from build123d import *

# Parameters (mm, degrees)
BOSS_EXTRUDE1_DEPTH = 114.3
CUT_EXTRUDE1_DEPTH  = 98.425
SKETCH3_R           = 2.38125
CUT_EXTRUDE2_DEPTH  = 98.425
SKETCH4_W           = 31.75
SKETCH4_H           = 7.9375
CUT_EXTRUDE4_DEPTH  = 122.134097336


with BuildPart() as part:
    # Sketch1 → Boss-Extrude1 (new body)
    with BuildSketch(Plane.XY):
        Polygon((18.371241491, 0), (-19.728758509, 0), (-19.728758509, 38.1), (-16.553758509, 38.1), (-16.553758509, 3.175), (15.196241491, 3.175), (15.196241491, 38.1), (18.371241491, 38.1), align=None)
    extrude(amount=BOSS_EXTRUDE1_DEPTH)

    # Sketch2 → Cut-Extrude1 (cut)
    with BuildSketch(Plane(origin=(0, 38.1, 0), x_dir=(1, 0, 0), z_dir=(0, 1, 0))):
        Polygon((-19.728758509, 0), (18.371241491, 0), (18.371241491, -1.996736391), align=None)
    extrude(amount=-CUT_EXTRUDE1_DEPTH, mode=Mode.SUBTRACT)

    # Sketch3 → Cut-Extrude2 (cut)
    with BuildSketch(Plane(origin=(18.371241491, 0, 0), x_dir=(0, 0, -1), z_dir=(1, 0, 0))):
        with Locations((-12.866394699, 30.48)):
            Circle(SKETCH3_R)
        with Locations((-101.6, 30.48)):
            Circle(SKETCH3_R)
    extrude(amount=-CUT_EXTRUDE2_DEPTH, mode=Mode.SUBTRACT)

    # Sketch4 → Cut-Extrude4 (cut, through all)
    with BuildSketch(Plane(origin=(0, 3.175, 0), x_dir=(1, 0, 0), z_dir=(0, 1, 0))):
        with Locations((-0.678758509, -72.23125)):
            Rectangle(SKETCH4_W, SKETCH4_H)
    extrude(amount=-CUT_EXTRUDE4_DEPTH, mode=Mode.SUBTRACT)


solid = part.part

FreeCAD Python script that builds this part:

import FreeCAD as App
import Part
import Sketcher
Q = App.Units.Quantity

doc = App.newDocument("Part")
params = doc.addObject("Spreadsheet::Sheet", "Params")
for row, (alias, value) in enumerate([
    ("sketch1_width", "1.5 in"),
    ("sketch1_width2", "1.25 in"),
    ("sketch1_height", "1.375 in"),
    ("pad1_length", "4.5 in"),
    ("sketch2_width", "1.5 in"),
    ("pocket1_length", "3.875 in"),
    ("sketch3_diameter", "0.1875 in"),
    ("pocket2_length", "3.875 in"),
    ("sketch4_width", "1.25 in"),
    ("sketch4_height", "0.3125 in"),
], start=1):
    params.set(f"A{row}", alias)
    params.set(f"B{row}", "=" + value)
    params.setAlias(f"B{row}", alias)

body = doc.addObject("PartDesign::Body", "Body")

# Sketch on XY plane
sketch1 = body.newObject("Sketcher::SketchObject", "Sketch")
sketch1.AttachmentSupport = (doc.getObject("XY_Plane"), [""])
sketch1.MapMode = "FlatFace"
sketch1.addGeometry(Part.LineSegment(App.Vector(-19.7, 0, 0), App.Vector(18.4, 0, 0)), False)
sketch1.addGeometry(Part.LineSegment(App.Vector(18.4, 0, 0), App.Vector(18.4, 38.1, 0)), False)
sketch1.addGeometry(Part.LineSegment(App.Vector(18.4, 38.1, 0), App.Vector(15.2, 38.1, 0)), False)
sketch1.addGeometry(Part.LineSegment(App.Vector(15.2, 38.1, 0), App.Vector(15.2, 3.2, 0)), False)
sketch1.addGeometry(Part.LineSegment(App.Vector(15.2, 3.2, 0), App.Vector(-16.6, 3.2, 0)), False)
sketch1.addGeometry(Part.LineSegment(App.Vector(-16.6, 3.2, 0), App.Vector(-16.6, 38.1, 0)), False)
sketch1.addGeometry(Part.LineSegment(App.Vector(-16.6, 38.1, 0), App.Vector(-19.7, 38.1, 0)), False)
sketch1.addGeometry(Part.LineSegment(App.Vector(-19.7, 38.1, 0), App.Vector(-19.7, 0, 0)), False)
sketch1.addConstraint(Sketcher.Constraint("Coincident", 0, 2, 1, 1))
sketch1.addConstraint(Sketcher.Constraint("Coincident", 1, 2, 2, 1))
sketch1.addConstraint(Sketcher.Constraint("Coincident", 2, 2, 3, 1))
sketch1.addConstraint(Sketcher.Constraint("Coincident", 3, 2, 4, 1))
sketch1.addConstraint(Sketcher.Constraint("Coincident", 4, 2, 5, 1))
sketch1.addConstraint(Sketcher.Constraint("Coincident", 5, 2, 6, 1))
sketch1.addConstraint(Sketcher.Constraint("Coincident", 6, 2, 7, 1))
sketch1.addConstraint(Sketcher.Constraint("Coincident", 7, 2, 0, 1))
sketch1.addConstraint(Sketcher.Constraint("Horizontal", 0))
sketch1.addConstraint(Sketcher.Constraint("Vertical", 1))
sketch1.addConstraint(Sketcher.Constraint("Horizontal", 2))
sketch1.addConstraint(Sketcher.Constraint("Vertical", 3))
sketch1.addConstraint(Sketcher.Constraint("Horizontal", 4))
sketch1.addConstraint(Sketcher.Constraint("Vertical", 5))
sketch1.addConstraint(Sketcher.Constraint("Horizontal", 6))
sketch1.addConstraint(Sketcher.Constraint("Vertical", 7))
sketch1.addConstraint(Sketcher.Constraint("PointOnObject", 0, 2, -1))
sketch1.addConstraint(Sketcher.Constraint("Horizontal", 2, 2, 5, 2))
sketch1.addConstraint(Sketcher.Constraint("Equal", 2, 6))
sketch1.addConstraint(Sketcher.Constraint("Equal", 0, 1))
sketch1.addConstraint(Sketcher.Constraint("DistanceX", 0, 1, 0, 2, Q("1.5 in")))
sketch1.addConstraint(Sketcher.Constraint("DistanceX", 4, 2, 4, 1, Q("1.25 in")))
sketch1.addConstraint(Sketcher.Constraint("DistanceY", 3, 2, 3, 1, Q("1.375 in")))
sketch1.addConstraint(Sketcher.Constraint("DistanceX", -1, 1, 0, 2, Q("18.371241 mm")))
sketch1.setExpression("Constraints[20]", "Params.sketch1_width")
sketch1.setExpression("Constraints[21]", "Params.sketch1_width2")
sketch1.setExpression("Constraints[22]", "Params.sketch1_height")
pad1 = body.newObject("PartDesign::Pad", "Pad")
pad1.Profile = sketch1
pad1.setExpression("Length", "Params.pad1_length")

# Sketch on XZ plane
sketch2 = body.newObject("Sketcher::SketchObject", "Sketch001")
sketch2.AttachmentSupport = (doc.getObject("XZ_Plane"), [""])
sketch2.MapMode = "FlatFace"
sketch2.AttachmentOffset = App.Placement(App.Vector(0, 0, -1.5 * 25.4), App.Rotation())
sketch2.addGeometry(Part.LineSegment(App.Vector(18.4, 0, 0), App.Vector(-19.7, 0, 0)), False)
sketch2.addGeometry(Part.LineSegment(App.Vector(-19.7, 0, 0), App.Vector(18.4, 2, 0)), False)
sketch2.addGeometry(Part.LineSegment(App.Vector(18.4, 2, 0), App.Vector(18.4, 0, 0)), False)
sketch2.addConstraint(Sketcher.Constraint("Coincident", 0, 2, 1, 1))
sketch2.addConstraint(Sketcher.Constraint("Coincident", 1, 2, 2, 1))
sketch2.addConstraint(Sketcher.Constraint("Coincident", 2, 2, 0, 1))
sketch2.addConstraint(Sketcher.Constraint("Horizontal", 0))
sketch2.addConstraint(Sketcher.Constraint("Vertical", 2))
sketch2.addConstraint(Sketcher.Constraint("PointOnObject", 0, 2, -1))
sketch2.addConstraint(Sketcher.Constraint("DistanceX", 0, 2, 0, 1, Q("1.5 in")))
sketch2.addConstraint(Sketcher.Constraint("Angle", 1, Q("3 deg")))
sketch2.addConstraint(Sketcher.Constraint("DistanceX", 0, 2, -1, 1, Q("19.728759 mm")))
sketch2.setExpression("Constraints[6]", "Params.sketch2_width")
pocket1 = body.newObject("PartDesign::Pocket", "Pocket")
pocket1.Profile = sketch2
pocket1.setExpression("Length", "Params.pocket1_length")
pocket1.Reversed = True

# Sketch on YZ plane
sketch3 = body.newObject("Sketcher::SketchObject", "Sketch002")
sketch3.AttachmentSupport = (doc.getObject("YZ_Plane"), [""])
sketch3.MapMode = "FlatFace"
sketch3.AttachmentOffset = App.Placement(App.Vector(0, 0, 18.371241), App.Rotation())
sketch3.addGeometry(Part.Circle(App.Vector(30.5, 12.9, 0), App.Vector(0, 0, 1), 2.4), False)
sketch3.addGeometry(Part.Circle(App.Vector(30.5, 101.6, 0), App.Vector(0, 0, 1), 2.4), False)
sketch3.addConstraint(Sketcher.Constraint("Equal", 0, 1))
sketch3.addConstraint(Sketcher.Constraint("Vertical", 0, 3, 1, 3))
sketch3.addConstraint(Sketcher.Constraint("Diameter", 0, Q("0.1875 in")))
sketch3.addConstraint(Sketcher.Constraint("DistanceY", -1, 1, 1, 3, Q("4 in")))
sketch3.addConstraint(Sketcher.Constraint("DistanceX", -1, 1, 0, 3, Q("1.2 in")))
sketch3.addConstraint(Sketcher.Constraint("DistanceY", -1, 1, 0, 3, Q("12.866395 mm")))
sketch3.setExpression("Constraints[2]", "Params.sketch3_diameter")
pocket2 = body.newObject("PartDesign::Pocket", "Pocket001")
pocket2.Profile = sketch3
pocket2.setExpression("Length", "Params.pocket2_length")

# Sketch on XZ plane
sketch4 = body.newObject("Sketcher::SketchObject", "Sketch003")
sketch4.AttachmentSupport = (doc.getObject("XZ_Plane"), [""])
sketch4.MapMode = "FlatFace"
sketch4.AttachmentOffset = App.Placement(App.Vector(0, 0, -0.125 * 25.4), App.Rotation())
sketch4.addGeometry(Part.LineSegment(App.Vector(-17, 68, 0), App.Vector(-17, 76, 0)), False)
sketch4.addGeometry(Part.LineSegment(App.Vector(-17, 76, 0), App.Vector(15, 76, 0)), False)
sketch4.addGeometry(Part.LineSegment(App.Vector(15, 76, 0), App.Vector(15, 68, 0)), False)
sketch4.addGeometry(Part.LineSegment(App.Vector(15, 68, 0), App.Vector(-17, 68, 0)), False)
sketch4.addConstraint(Sketcher.Constraint("Coincident", 0, 2, 1, 1))
sketch4.addConstraint(Sketcher.Constraint("Coincident", 1, 2, 2, 1))
sketch4.addConstraint(Sketcher.Constraint("Coincident", 2, 2, 3, 1))
sketch4.addConstraint(Sketcher.Constraint("Coincident", 3, 2, 0, 1))
sketch4.addConstraint(Sketcher.Constraint("Vertical", 0))
sketch4.addConstraint(Sketcher.Constraint("Horizontal", 1))
sketch4.addConstraint(Sketcher.Constraint("Vertical", 2))
sketch4.addConstraint(Sketcher.Constraint("Horizontal", 3))
sketch4.addConstraint(Sketcher.Constraint("DistanceY", -1, 1, 0, 2, Q("3 in")))
sketch4.addConstraint(Sketcher.Constraint("DistanceX", 1, 1, 1, 2, Q("1.25 in")))
sketch4.addConstraint(Sketcher.Constraint("DistanceY", 0, 1, 0, 2, Q("0.3125 in")))
sketch4.addConstraint(Sketcher.Constraint("DistanceX", 0, 2, -1, 1, Q("16.553759 mm")))
sketch4.setExpression("Constraints[9]", "Params.sketch4_width")
sketch4.setExpression("Constraints[10]", "Params.sketch4_height")
pocket3 = body.newObject("PartDesign::Pocket", "Pocket002")
pocket3.Profile = sketch4
pocket3.Type = "ThroughAll"
pocket3.Reversed = True

doc.recompute()
